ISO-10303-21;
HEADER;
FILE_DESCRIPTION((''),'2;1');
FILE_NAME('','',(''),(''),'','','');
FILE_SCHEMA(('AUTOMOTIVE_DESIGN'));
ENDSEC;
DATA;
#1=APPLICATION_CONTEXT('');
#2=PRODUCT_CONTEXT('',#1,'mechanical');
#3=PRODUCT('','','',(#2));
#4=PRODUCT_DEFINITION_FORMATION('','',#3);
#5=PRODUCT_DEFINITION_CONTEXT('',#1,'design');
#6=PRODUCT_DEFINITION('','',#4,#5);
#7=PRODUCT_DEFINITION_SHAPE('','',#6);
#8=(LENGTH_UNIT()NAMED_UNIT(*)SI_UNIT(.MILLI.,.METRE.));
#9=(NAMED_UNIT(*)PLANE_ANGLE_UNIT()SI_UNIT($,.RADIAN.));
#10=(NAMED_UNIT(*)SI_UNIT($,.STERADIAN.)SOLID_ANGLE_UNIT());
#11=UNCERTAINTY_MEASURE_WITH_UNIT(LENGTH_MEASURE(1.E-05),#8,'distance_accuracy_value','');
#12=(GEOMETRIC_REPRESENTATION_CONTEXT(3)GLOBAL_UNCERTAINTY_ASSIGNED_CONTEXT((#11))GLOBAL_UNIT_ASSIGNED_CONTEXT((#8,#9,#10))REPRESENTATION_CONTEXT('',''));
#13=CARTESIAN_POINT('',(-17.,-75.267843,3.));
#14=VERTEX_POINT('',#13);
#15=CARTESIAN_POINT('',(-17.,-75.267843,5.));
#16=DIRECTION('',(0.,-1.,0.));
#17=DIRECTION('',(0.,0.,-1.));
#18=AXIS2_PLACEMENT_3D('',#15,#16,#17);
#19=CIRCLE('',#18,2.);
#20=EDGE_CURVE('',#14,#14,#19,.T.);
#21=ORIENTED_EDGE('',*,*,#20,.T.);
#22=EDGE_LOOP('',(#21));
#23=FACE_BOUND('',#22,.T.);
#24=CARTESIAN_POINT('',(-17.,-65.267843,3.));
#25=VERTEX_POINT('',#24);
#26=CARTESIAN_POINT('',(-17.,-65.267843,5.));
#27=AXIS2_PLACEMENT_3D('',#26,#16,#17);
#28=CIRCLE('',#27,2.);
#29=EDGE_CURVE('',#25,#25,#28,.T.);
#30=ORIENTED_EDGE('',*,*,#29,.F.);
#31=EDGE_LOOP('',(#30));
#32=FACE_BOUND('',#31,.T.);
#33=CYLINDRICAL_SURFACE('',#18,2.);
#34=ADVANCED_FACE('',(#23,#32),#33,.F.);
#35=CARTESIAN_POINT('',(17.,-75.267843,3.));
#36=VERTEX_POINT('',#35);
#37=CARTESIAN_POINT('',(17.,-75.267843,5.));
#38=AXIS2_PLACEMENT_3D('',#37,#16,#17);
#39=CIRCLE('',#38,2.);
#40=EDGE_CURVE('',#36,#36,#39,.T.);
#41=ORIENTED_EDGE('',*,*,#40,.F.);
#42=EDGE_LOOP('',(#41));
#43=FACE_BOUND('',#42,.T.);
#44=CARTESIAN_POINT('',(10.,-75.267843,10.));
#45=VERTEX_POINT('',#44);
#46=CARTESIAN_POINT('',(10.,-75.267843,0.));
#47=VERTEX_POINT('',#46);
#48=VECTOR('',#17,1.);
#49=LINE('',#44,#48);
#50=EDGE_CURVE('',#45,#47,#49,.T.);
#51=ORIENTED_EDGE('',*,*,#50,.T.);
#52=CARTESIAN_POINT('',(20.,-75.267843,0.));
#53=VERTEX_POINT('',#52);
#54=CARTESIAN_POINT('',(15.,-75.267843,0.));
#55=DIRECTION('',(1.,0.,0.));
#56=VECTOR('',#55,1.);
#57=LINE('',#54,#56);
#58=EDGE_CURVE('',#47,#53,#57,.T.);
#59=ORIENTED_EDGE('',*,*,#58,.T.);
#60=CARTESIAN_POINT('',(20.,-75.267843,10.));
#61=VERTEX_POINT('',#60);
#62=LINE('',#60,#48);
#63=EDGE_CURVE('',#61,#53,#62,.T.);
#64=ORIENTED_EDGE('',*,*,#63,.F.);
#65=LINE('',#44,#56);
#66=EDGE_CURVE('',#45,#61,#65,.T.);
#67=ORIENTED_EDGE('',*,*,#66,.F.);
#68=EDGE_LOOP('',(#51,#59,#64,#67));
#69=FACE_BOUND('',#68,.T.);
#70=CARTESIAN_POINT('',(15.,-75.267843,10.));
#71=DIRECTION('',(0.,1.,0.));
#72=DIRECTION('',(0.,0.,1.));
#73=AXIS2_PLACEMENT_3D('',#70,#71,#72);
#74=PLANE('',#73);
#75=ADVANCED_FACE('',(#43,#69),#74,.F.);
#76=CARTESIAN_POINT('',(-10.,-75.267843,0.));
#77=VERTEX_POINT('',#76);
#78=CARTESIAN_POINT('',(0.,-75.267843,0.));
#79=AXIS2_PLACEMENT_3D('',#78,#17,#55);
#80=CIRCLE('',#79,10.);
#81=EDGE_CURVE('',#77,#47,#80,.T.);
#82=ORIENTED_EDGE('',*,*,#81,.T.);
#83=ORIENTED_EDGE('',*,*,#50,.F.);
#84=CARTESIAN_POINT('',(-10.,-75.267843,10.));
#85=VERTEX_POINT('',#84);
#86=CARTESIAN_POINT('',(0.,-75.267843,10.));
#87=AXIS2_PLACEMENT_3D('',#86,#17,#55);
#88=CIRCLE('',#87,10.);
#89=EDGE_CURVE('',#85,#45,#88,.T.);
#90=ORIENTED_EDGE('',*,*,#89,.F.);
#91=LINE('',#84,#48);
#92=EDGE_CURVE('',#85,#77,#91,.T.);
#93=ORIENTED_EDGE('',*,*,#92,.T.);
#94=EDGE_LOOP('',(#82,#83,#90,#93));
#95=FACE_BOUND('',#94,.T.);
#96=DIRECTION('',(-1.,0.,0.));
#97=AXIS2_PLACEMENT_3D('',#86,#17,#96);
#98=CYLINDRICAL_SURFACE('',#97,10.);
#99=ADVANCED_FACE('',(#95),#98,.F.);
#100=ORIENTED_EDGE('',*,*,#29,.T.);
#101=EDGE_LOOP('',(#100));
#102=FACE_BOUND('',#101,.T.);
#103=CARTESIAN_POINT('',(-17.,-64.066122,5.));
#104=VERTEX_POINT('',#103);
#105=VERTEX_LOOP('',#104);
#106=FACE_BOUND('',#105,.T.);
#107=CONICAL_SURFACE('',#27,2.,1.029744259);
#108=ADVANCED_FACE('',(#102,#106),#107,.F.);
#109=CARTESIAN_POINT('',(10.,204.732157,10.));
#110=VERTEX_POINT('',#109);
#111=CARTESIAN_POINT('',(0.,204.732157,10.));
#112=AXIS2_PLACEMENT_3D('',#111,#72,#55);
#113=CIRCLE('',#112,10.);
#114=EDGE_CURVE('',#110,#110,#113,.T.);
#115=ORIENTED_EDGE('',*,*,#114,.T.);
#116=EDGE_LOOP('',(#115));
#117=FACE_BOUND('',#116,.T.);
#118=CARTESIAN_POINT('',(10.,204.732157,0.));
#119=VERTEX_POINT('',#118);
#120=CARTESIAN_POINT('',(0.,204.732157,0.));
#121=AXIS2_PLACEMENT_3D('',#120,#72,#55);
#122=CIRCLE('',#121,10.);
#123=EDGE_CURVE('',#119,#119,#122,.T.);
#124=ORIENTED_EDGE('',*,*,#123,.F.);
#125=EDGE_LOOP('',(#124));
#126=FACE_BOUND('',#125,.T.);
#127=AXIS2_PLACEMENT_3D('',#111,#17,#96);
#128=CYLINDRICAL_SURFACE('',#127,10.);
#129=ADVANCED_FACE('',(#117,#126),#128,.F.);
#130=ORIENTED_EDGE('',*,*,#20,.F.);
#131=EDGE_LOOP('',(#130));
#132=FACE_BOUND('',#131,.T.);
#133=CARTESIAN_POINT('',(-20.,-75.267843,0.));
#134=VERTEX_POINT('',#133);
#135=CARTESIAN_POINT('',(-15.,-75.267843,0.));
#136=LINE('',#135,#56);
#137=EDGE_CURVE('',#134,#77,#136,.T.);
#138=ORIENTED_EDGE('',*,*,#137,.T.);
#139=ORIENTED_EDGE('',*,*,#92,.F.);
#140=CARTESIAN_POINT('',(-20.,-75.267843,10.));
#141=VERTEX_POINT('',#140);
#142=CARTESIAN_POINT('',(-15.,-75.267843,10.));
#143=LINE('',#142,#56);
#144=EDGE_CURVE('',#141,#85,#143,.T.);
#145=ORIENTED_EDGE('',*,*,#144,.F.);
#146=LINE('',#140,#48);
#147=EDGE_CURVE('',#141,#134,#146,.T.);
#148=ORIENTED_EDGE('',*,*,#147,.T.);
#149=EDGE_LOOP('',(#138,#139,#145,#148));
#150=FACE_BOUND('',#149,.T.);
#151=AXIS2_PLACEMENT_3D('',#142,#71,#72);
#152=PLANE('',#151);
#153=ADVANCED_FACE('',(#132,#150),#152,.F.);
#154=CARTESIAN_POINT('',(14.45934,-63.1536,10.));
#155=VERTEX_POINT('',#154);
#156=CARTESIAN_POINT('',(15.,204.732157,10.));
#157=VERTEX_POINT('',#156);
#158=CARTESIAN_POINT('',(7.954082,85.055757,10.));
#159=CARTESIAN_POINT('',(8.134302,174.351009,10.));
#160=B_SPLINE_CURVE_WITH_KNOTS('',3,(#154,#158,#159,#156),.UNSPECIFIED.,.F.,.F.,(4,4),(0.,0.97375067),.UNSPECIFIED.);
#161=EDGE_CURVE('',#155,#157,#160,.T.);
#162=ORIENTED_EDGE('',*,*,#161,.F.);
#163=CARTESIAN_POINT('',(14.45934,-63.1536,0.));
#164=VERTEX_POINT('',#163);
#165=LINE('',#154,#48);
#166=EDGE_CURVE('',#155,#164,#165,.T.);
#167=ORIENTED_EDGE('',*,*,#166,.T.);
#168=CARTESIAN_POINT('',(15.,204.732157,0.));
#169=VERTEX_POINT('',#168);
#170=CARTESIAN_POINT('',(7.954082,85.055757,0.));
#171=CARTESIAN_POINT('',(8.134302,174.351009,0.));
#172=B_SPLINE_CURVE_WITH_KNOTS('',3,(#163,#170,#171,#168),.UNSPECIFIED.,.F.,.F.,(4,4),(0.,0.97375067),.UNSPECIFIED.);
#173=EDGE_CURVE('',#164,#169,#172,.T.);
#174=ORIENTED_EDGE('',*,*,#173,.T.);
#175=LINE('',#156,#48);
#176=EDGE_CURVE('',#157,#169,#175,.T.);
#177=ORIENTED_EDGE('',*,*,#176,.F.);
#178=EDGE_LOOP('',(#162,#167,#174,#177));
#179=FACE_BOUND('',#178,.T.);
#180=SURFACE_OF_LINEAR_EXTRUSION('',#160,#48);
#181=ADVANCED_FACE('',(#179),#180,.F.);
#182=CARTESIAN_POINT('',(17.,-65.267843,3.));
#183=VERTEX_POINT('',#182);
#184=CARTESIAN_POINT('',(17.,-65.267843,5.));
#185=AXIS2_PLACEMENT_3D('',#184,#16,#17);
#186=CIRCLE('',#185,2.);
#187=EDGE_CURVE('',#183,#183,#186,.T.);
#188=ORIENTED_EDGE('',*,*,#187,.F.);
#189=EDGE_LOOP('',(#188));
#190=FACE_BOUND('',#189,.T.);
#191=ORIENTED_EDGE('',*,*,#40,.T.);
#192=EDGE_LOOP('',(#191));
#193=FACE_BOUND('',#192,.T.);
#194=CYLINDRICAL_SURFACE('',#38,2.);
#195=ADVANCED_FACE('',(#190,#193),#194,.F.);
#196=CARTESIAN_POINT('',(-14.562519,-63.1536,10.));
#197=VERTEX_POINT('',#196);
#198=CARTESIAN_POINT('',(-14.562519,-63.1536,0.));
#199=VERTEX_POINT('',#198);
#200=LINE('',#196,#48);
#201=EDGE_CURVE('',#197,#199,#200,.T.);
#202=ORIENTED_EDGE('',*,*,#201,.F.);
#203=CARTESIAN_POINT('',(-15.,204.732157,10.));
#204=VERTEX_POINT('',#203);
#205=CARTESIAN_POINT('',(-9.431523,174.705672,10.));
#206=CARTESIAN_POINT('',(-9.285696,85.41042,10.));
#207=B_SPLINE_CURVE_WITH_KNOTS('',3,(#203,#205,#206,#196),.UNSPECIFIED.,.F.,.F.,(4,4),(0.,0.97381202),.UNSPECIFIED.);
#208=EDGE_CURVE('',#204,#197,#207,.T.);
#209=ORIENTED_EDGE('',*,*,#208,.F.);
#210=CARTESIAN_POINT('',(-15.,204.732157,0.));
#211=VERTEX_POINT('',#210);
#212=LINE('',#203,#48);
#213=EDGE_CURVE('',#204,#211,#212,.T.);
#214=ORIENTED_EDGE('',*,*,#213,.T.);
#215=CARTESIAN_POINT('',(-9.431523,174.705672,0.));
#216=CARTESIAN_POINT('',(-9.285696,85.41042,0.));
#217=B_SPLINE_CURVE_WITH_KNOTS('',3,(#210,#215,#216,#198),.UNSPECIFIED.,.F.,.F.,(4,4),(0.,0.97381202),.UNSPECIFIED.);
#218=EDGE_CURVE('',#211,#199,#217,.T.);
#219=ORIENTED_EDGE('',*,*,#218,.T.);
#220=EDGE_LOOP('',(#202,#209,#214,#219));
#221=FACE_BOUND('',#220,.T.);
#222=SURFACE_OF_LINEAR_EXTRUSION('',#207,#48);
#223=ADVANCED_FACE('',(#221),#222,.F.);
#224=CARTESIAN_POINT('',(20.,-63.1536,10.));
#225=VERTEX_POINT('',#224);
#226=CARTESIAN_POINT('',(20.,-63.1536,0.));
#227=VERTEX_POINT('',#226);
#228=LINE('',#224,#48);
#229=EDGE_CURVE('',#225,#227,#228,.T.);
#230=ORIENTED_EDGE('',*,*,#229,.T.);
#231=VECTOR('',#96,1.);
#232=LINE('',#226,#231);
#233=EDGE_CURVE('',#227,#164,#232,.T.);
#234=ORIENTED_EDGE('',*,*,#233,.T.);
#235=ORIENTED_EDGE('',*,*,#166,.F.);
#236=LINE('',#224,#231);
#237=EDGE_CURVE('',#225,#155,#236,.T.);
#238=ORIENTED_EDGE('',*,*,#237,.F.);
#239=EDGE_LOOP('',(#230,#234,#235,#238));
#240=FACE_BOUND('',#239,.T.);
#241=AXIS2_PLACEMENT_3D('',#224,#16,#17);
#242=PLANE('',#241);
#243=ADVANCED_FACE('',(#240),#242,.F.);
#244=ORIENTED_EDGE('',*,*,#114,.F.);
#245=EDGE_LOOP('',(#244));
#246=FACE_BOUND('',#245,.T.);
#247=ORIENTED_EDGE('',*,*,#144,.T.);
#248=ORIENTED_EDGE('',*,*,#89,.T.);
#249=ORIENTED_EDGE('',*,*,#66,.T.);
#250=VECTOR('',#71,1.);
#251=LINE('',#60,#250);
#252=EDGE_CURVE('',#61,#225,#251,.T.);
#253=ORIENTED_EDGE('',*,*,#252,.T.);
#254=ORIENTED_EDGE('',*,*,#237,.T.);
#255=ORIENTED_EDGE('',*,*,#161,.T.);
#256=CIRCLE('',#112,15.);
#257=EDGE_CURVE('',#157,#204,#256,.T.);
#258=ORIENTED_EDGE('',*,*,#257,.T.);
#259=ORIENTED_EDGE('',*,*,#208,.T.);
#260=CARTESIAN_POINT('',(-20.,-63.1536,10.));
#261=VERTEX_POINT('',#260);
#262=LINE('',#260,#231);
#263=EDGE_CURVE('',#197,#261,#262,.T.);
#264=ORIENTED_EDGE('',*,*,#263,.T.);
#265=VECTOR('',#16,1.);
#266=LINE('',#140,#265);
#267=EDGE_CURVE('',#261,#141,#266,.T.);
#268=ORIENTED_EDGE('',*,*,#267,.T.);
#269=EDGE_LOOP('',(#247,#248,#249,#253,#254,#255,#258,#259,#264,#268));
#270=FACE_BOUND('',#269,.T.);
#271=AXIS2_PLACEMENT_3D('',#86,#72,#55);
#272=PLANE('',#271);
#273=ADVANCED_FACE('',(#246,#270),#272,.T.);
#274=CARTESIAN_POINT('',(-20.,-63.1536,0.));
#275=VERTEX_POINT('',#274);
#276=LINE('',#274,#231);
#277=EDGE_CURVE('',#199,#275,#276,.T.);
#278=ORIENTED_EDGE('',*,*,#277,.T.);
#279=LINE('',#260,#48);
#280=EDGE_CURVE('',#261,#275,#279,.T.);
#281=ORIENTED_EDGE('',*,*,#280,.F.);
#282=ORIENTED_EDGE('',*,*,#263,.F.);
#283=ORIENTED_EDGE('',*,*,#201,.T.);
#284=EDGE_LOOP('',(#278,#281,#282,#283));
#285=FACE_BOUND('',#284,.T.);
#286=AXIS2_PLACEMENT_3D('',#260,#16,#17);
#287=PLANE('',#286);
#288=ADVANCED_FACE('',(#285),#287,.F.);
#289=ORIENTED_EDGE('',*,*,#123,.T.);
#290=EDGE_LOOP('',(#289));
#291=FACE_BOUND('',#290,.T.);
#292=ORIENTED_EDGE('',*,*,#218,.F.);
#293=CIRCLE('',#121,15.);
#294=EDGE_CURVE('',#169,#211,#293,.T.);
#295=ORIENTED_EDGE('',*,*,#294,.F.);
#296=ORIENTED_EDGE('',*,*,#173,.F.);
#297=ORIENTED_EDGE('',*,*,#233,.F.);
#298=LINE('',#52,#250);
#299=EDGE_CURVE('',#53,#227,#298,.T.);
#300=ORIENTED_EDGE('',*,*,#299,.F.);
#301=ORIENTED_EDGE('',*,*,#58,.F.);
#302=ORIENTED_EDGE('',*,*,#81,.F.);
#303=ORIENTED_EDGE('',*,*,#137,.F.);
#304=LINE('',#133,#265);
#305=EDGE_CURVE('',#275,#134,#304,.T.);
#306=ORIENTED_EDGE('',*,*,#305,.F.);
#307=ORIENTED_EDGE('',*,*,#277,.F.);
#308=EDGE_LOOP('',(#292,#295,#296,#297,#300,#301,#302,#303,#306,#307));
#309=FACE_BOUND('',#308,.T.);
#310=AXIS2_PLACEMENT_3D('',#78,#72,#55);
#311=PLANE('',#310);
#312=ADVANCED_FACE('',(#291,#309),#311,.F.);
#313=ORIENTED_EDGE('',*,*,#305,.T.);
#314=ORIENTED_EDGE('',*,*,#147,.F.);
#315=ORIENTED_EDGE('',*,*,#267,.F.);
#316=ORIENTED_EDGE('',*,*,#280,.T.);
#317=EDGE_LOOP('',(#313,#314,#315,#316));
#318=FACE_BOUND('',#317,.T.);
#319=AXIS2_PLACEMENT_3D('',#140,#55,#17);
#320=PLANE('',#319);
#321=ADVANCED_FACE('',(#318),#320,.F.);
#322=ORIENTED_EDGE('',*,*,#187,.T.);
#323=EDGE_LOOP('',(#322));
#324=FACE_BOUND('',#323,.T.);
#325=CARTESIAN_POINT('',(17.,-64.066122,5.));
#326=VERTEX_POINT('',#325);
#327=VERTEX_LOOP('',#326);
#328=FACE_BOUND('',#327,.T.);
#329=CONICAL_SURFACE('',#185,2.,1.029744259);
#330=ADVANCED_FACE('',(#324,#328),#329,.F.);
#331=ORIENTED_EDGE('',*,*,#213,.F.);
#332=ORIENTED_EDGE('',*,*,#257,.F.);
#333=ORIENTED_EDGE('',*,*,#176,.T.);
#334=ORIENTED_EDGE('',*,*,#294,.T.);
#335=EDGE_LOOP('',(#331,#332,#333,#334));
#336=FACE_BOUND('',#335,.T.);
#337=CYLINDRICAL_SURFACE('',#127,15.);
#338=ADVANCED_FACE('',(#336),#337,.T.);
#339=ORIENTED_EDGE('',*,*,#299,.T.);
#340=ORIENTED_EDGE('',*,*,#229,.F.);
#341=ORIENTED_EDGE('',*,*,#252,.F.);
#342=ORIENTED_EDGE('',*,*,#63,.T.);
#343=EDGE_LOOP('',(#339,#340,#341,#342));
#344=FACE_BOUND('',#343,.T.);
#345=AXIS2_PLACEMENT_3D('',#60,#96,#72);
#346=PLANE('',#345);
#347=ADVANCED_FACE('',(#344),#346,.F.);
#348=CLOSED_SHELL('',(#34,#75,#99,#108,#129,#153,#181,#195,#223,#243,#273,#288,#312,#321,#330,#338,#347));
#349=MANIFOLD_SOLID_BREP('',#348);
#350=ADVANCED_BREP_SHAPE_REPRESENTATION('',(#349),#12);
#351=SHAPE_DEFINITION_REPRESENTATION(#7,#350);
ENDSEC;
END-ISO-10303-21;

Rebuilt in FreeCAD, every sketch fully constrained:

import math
import FreeCAD as App
import Part
import Sketcher

V = App.Vector
Q = App.Units.Quantity


def add_polygon(sketch, points):
    """Adds a closed chain of lines whose ends are joined by coincident constraints."""
    first, n = sketch.GeometryCount, len(points)
    for a, b in zip(points, points[1:] + points[:1]):
        sketch.addGeometry(Part.LineSegment(App.Vector(*a, 0), App.Vector(*b, 0)), False)
    for i in range(n):
        sketch.addConstraint(Sketcher.Constraint("Coincident", first + i, 2, first + (i + 1) % n, 1))

doc = App.newDocument("Part")
body = doc.addObject("PartDesign::Body", "Body")

# Sketch on XY plane
sketch1 = body.newObject("Sketcher::SketchObject", "Sketch")
sketch1.AttachmentSupport = (doc.getObject("XY_Plane"), [""])
sketch1.MapMode = "FlatFace"
sketch1.addGeometry([
    Part.ArcOfCircle(Part.Circle(V(0, -75.267843, 0), V(0, 0, 1), 10), math.radians(0), math.radians(180)),  # 0
    Part.LineSegment(V(10, -75.267843, 0), V(20, -75.267843, 0)),  # 1
    Part.LineSegment(V(20, -75.267843, 0), V(20, -63.1536, 0)),  # 2
    Part.LineSegment(V(20, -63.1536, 0), V(14.45934, -63.1536, 0)),  # 3
    Part.BSplineCurve([V(15, 204.732157, 0), V(8.134302, 174.351009, 0), V(7.954082, 85.055757, 0), V(14.45934, -63.1536, 0)], [4, 4], [0, 0.97375067], False, 3, [1, 1, 1, 1], False),  # 4
    Part.ArcOfCircle(Part.Circle(V(0, 204.732157, 0), V(0, 0, 1), 15), math.radians(0), math.radians(180)),  # 5
    Part.BSplineCurve([V(-15, 204.732157, 0), V(-9.431523, 174.705672, 0), V(-9.285696, 85.41042, 0), V(-14.562519, -63.1536, 0)], [4, 4], [0, 0.97381202], False, 3, [1, 1, 1, 1], False),  # 6
    Part.LineSegment(V(-14.562519, -63.1536, 0), V(-20, -63.1536, 0)),  # 7
    Part.LineSegment(V(-20, -63.1536, 0), V(-20, -75.267843, 0)),  # 8
    Part.LineSegment(V(-20, -75.267843, 0), V(-10, -75.267843, 0)),  # 9
    Part.Circle(V(0, 204.732157, 0), V(0, 0, 1), 10),  # 10
], False)
sketch1.addConstraint([
    Sketcher.Constraint("Block", 4),
    Sketcher.Constraint("Block", 6),
    Sketcher.Constraint("Coincident", 0, 1, 1, 1),
    Sketcher.Constraint("Coincident", 1, 2, 2, 1),
    Sketcher.Constraint("Coincident", 2, 2, 3, 1),
    Sketcher.Constraint("Coincident", 3, 2, 4, 2),
    Sketcher.Constraint("Coincident", 4, 1, 5, 1),
    Sketcher.Constraint("Coincident", 5, 2, 6, 1),
    Sketcher.Constraint("Coincident", 6, 2, 7, 1),
    Sketcher.Constraint("Coincident", 7, 2, 8, 1),
    Sketcher.Constraint("Coincident", 8, 2, 9, 1),
    Sketcher.Constraint("Coincident", 9, 2, 0, 2),
    Sketcher.Constraint("Horizontal", 1),
    Sketcher.Constraint("Vertical", 2),
    Sketcher.Constraint("Horizontal", 3),
    Sketcher.Constraint("Horizontal", 7),
    Sketcher.Constraint("Vertical", 8),
    Sketcher.Constraint("Horizontal", 9),
    Sketcher.Constraint("Coincident", 10, 3, 5, 3),
    Sketcher.Constraint("Equal", 0, 10),
    Sketcher.Constraint("Symmetric", 1, 2, 8, 2, -2),
    Sketcher.Constraint("PointOnObject", 0, 3, -2),
    Sketcher.Constraint("Horizontal", 10, 3, 5, 2),
    Sketcher.Constraint("Diameter", 10, 20.0),
    Sketcher.Constraint("DistanceX", 1, 1, 1, 2, 10.0),
    Sketcher.Constraint("DistanceY", 0, 3, 5, 3, 280.0),
    Sketcher.Constraint("DistanceY", 0, 1, 5, 3, 280.0),
])
pad1 = body.newObject("PartDesign::Pad", "Pad")
pad1.Profile = sketch1
pad1.Length = 10

# Sketch on YZ plane
sketch2 = body.newObject("Sketcher::SketchObject", "Sketch001")
sketch2.AttachmentSupport = (doc.getObject("YZ_Plane"), [""])
sketch2.MapMode = "FlatFace"
sketch2.AttachmentOffset = App.Placement(V(0, 0, -17), App.Rotation())
add_polygon(sketch2, [(-64.066122, 5), (-75.267843, 5), (-75.267843, 3), (-65.267843, 3)])  # lines 0-3
sketch2.addGeometry(Part.LineSegment(V(-75.267843, 5, 0), V(-64.066122, 5, 0)), True)  # axis
sketch2.addConstraint([
    Sketcher.Constraint("Horizontal", 0),
    Sketcher.Constraint("Vertical", 1),
    Sketcher.Constraint("Horizontal", 2),
    Sketcher.Constraint("Horizontal", 4),
    Sketcher.Constraint("Coincident", 4, 1, 0, 2),
    Sketcher.Constraint("Equal", 0, 4),
    Sketcher.Constraint("DistanceX", 2, 1, 2, 2, 10.0),
    Sketcher.Constraint("DistanceY", 1, 2, 1, 1, 2.0),
    Sketcher.Constraint("Angle", 3, Q("59 deg")),
    Sketcher.Constraint("DistanceY", -1, 1, 0, 2, 5.0),
    Sketcher.Constraint("DistanceX", 0, 2, -1, 1, 75.267843),
])
groove = body.newObject("PartDesign::Groove", "Groove")
groove.Profile = sketch2
groove.ReferenceAxis = (sketch2, ["Axis0"])
groove.Angle = 360
doc.recompute()

mirrored = body.newObject("PartDesign::Mirrored", "Mirrored")
mirrored.Originals = [groove]
mirrored.MirrorPlane = (doc.getObject("YZ_Plane"), [""])
body.Tip = mirrored

doc.recompute()
